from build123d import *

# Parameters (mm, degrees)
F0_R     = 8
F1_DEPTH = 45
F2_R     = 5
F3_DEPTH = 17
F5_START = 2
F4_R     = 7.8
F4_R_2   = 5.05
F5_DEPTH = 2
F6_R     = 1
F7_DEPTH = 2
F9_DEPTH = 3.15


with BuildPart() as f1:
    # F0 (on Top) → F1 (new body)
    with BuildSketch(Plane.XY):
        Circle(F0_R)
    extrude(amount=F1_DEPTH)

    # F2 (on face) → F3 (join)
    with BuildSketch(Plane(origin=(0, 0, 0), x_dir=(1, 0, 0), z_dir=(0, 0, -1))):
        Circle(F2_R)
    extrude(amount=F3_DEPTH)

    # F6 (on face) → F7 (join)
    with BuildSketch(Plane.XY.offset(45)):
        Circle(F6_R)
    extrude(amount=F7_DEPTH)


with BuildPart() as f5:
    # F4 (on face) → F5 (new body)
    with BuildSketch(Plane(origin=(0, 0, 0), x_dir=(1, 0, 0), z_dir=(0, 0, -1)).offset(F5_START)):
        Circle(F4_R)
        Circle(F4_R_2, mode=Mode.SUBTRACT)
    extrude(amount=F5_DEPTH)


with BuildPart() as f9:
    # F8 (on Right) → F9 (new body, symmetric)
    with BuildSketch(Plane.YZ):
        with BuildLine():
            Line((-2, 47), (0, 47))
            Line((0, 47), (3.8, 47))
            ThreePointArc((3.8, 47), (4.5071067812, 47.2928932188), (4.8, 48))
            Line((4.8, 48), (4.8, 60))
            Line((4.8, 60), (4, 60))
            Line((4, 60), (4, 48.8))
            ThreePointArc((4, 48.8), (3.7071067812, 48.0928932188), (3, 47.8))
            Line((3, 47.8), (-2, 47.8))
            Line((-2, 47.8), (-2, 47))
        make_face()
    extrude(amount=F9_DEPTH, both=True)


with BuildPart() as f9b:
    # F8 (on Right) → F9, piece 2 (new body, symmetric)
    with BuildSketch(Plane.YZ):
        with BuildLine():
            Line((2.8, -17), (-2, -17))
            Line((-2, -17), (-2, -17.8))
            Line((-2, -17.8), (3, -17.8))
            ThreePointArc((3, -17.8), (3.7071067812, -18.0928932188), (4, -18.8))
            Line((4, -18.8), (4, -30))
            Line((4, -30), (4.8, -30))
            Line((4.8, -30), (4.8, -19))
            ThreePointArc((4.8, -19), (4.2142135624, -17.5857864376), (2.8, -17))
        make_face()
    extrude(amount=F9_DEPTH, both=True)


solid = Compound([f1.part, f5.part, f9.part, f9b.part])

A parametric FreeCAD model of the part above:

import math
import FreeCAD as App
import Part
import Sketcher

doc = App.newDocument("Part")
body = doc.addObject("PartDesign::Body", "Body")

# Sketch on XY plane
sketch1 = body.newObject("Sketcher::SketchObject", "Sketch")
sketch1.AttachmentSupport = (doc.getObject("XY_Plane"), [""])
sketch1.MapMode = "FlatFace"
sketch1.addGeometry(Part.Circle(App.Vector(0, 0, 0), App.Vector(0, 0, 1), 8), False)
sketch1.addConstraint([
    Sketcher.Constraint("Coincident", 0, 3, -1, 1),
    Sketcher.Constraint("Diameter", 0, 16.0),
])
pad1 = body.newObject("PartDesign::Pad", "Pad")
pad1.Profile = sketch1
pad1.Length = 45

# Sketch on XY plane
sketch2 = body.newObject("Sketcher::SketchObject", "Sketch001")
sketch2.AttachmentSupport = (doc.getObject("XY_Plane"), [""])
sketch2.MapMode = "FlatFace"
sketch2.addGeometry(Part.Circle(App.Vector(0, 0, 0), App.Vector(0, 0, 1), 5), False)
sketch2.addConstraint([
    Sketcher.Constraint("Coincident", 0, 3, -1, 1),
    Sketcher.Constraint("Diameter", 0, 10.0),
])
pad2 = body.newObject("PartDesign::Pad", "Pad001")
pad2.Profile = sketch2
pad2.Length = 17
pad2.Reversed = True

# Sketch on XY plane
sketch3 = body.newObject("Sketcher::SketchObject", "Sketch002")
sketch3.AttachmentSupport = (doc.getObject("XY_Plane"), [""])
sketch3.MapMode = "FlatFace"
sketch3.AttachmentOffset = App.Placement(App.Vector(0, 0, 45), App.Rotation())
sketch3.addGeometry(Part.Circle(App.Vector(0, 0, 0), App.Vector(0, 0, 1), 1), False)
sketch3.addConstraint([
    Sketcher.Constraint("Coincident", 0, 3, -1, 1),
    Sketcher.Constraint("Diameter", 0, 2.0),
])
pad3 = body.newObject("PartDesign::Pad", "Pad002")
pad3.Profile = sketch3
pad3.Length = 2
body2 = doc.addObject("PartDesign::Body", "Body001")

# Sketch on XY plane
sketch4 = body2.newObject("Sketcher::SketchObject", "Sketch003")
sketch4.AttachmentSupport = (doc.getObject("XY_Plane001"), [""])
sketch4.MapMode = "FlatFace"
sketch4.AttachmentOffset = App.Placement(App.Vector(0, 0, -2), App.Rotation())
sketch4.addGeometry([
    Part.Circle(App.Vector(0, 0, 0), App.Vector(0, 0, 1), 8),
    Part.Circle(App.Vector(0, 0, 0), App.Vector(0, 0, 1), 5),
], False)
sketch4.addConstraint([
    Sketcher.Constraint("Coincident", 0, 3, -1, 1),
    Sketcher.Constraint("Coincident", 1, 3, -1, 1),
    Sketcher.Constraint("Diameter", 0, 15.6),
    Sketcher.Constraint("Diameter", 1, 10.1),
])
pad4 = body2.newObject("PartDesign::Pad", "Pad003")
pad4.Profile = sketch4
pad4.Length = 2
pad4.Reversed = True
body3 = doc.addObject("PartDesign::Body", "Body002")

# Sketch on YZ plane
sketch5 = body3.newObject("Sketcher::SketchObject", "Sketch004")
sketch5.AttachmentSupport = (doc.getObject("YZ_Plane002"), [""])
sketch5.MapMode = "FlatFace"
sketch5.addGeometry([
    Part.LineSegment(App.Vector(-2, 47, 0), App.Vector(3.8, 47, 0)),  # 0
    Part.ArcOfCircle(Part.Circle(App.Vector(3.8, 48, 0), App.Vector(0, 0, 1), 1), math.radians(-90), math.radians(0)),  # 1
    Part.LineSegment(App.Vector(4.8, 48, 0), App.Vector(4.8, 60, 0)),  # 2
    Part.LineSegment(App.Vector(4.8, 60, 0), App.Vector(4, 60, 0)),  # 3
    Part.LineSegment(App.Vector(4, 60, 0), App.Vector(4, 48.8, 0)),  # 4
    Part.ArcOfCircle(Part.Circle(App.Vector(3, 48.8, 0), App.Vector(0, 0, 1), 1), math.radians(-90), math.radians(0)),  # 5
    Part.LineSegment(App.Vector(3, 47.8, 0), App.Vector(-2, 47.8, 0)),  # 6
    Part.LineSegment(App.Vector(-2, 47.8, 0), App.Vector(-2, 47, 0)),  # 7
], False)
sketch5.addConstraint([
    Sketcher.Constraint("Tangent", 0, 2, 1, 1),
    Sketcher.Constraint("Tangent", 1, 2, 2, 1),
    Sketcher.Constraint("Coincident", 2, 2, 3, 1),
    Sketcher.Constraint("Coincident", 3, 2, 4, 1),
    Sketcher.Constraint("Tangent", 4, 2, 5, 2),
    Sketcher.Constraint("Tangent", 5, 1, 6, 1),
    Sketcher.Constraint("Coincident", 6, 2, 7, 1),
    Sketcher.Constraint("Coincident", 7, 2, 0, 1),
    Sketcher.Constraint("Horizontal", 0),
    Sketcher.Constraint("Vertical", 2),
    Sketcher.Constraint("Horizontal", 3),
    Sketcher.Constraint("Vertical", 4),
    Sketcher.Constraint("Horizontal", 6),
    Sketcher.Constraint("Vertical", 7),
    Sketcher.Constraint("Equal", 1, 5),
    Sketcher.Constraint("Equal", 3, 7),
    Sketcher.Constraint("Radius", 1, 1.0),
    Sketcher.Constraint("DistanceX", 6, 2, 6, 1, 5.0),
    Sketcher.Constraint("DistanceY", 2, 1, 2, 2, 12.0),
    Sketcher.Constraint("DistanceX", 0, 1, 0, 2, 5.8),
    Sketcher.Constraint("DistanceY", -1, 1, 1, 3, 48.0),
    Sketcher.Constraint("DistanceX", -1, 1, 5, 3, 3.0),
])
pad5 = body3.newObject("PartDesign::Pad", "Pad004")
pad5.Profile = sketch5
pad5.Length = 6.3
pad5.Midplane = True
body4 = doc.addObject("PartDesign::Body", "Body003")

# Sketch on YZ plane
sketch6 = body4.newObject("Sketcher::SketchObject", "Sketch005")
sketch6.AttachmentSupport = (doc.getObject("YZ_Plane003"), [""])
sketch6.MapMode = "FlatFace"
sketch6.addGeometry([
    Part.LineSegment(App.Vector(2.8, -17, 0), App.Vector(-2, -17, 0)),  # 0
    Part.LineSegment(App.Vector(-2, -17, 0), App.Vector(-2, -17.8, 0)),  # 1
    Part.LineSegment(App.Vector(-2, -17.8, 0), App.Vector(3, -17.8, 0)),  # 2
    Part.ArcOfCircle(Part.Circle(App.Vector(3, -18.8, 0), App.Vector(0, 0, 1), 1), math.radians(0), math.radians(90)),  # 3
    Part.LineSegment(App.Vector(4, -18.8, 0), App.Vector(4, -30, 0)),  # 4
    Part.LineSegment(App.Vector(4, -30, 0), App.Vector(4.8, -30, 0)),  # 5
    Part.LineSegment(App.Vector(4.8, -30, 0), App.Vector(4.8, -19, 0)),  # 6
    Part.ArcOfCircle(Part.Circle(App.Vector(2.8, -19, 0), App.Vector(0, 0, 1), 2), math.radians(0), math.radians(90)),  # 7
], False)
sketch6.addConstraint([
    Sketcher.Constraint("Coincident", 0, 2, 1, 1),
    Sketcher.Constraint("Coincident", 1, 2, 2, 1),
    Sketcher.Constraint("Tangent", 2, 2, 3, 2),
    Sketcher.Constraint("Tangent", 3, 1, 4, 1),
    Sketcher.Constraint("Coincident", 4, 2, 5, 1),
    Sketcher.Constraint("Coincident", 5, 2, 6, 1),
    Sketcher.Constraint("Tangent", 6, 2, 7, 1),
    Sketcher.Constraint("Tangent", 7, 2, 0, 1),
    Sketcher.Constraint("Horizontal", 0),
    Sketcher.Constraint("Vertical", 1),
    Sketcher.Constraint("Horizontal", 2),
    Sketcher.Constraint("Vertical", 4),
    Sketcher.Constraint("Horizontal", 5),
    Sketcher.Constraint("Vertical", 6),
    Sketcher.Constraint("Equal", 5, 1),
    Sketcher.Constraint("Radius", 3, 1.0),
    Sketcher.Constraint("Radius", 7, 2.0),
    Sketcher.Constraint("DistanceX", 2, 1, 2, 2, 5.0),
    Sketcher.Constraint("DistanceY", 6, 1, 6, 2, 11.0),
    Sketcher.Constraint("DistanceX", 0, 2, 0, 1, 4.8),
    Sketcher.Constraint("DistanceX", -1, 1, 3, 3, 3.0),
    Sketcher.Constraint("DistanceY", 7, 3, -1, 1, 19.0),
])
pad6 = body4.newObject("PartDesign::Pad", "Pad005")
pad6.Profile = sketch6
pad6.Length = 6.3
pad6.Midplane = True

doc.recompute()
